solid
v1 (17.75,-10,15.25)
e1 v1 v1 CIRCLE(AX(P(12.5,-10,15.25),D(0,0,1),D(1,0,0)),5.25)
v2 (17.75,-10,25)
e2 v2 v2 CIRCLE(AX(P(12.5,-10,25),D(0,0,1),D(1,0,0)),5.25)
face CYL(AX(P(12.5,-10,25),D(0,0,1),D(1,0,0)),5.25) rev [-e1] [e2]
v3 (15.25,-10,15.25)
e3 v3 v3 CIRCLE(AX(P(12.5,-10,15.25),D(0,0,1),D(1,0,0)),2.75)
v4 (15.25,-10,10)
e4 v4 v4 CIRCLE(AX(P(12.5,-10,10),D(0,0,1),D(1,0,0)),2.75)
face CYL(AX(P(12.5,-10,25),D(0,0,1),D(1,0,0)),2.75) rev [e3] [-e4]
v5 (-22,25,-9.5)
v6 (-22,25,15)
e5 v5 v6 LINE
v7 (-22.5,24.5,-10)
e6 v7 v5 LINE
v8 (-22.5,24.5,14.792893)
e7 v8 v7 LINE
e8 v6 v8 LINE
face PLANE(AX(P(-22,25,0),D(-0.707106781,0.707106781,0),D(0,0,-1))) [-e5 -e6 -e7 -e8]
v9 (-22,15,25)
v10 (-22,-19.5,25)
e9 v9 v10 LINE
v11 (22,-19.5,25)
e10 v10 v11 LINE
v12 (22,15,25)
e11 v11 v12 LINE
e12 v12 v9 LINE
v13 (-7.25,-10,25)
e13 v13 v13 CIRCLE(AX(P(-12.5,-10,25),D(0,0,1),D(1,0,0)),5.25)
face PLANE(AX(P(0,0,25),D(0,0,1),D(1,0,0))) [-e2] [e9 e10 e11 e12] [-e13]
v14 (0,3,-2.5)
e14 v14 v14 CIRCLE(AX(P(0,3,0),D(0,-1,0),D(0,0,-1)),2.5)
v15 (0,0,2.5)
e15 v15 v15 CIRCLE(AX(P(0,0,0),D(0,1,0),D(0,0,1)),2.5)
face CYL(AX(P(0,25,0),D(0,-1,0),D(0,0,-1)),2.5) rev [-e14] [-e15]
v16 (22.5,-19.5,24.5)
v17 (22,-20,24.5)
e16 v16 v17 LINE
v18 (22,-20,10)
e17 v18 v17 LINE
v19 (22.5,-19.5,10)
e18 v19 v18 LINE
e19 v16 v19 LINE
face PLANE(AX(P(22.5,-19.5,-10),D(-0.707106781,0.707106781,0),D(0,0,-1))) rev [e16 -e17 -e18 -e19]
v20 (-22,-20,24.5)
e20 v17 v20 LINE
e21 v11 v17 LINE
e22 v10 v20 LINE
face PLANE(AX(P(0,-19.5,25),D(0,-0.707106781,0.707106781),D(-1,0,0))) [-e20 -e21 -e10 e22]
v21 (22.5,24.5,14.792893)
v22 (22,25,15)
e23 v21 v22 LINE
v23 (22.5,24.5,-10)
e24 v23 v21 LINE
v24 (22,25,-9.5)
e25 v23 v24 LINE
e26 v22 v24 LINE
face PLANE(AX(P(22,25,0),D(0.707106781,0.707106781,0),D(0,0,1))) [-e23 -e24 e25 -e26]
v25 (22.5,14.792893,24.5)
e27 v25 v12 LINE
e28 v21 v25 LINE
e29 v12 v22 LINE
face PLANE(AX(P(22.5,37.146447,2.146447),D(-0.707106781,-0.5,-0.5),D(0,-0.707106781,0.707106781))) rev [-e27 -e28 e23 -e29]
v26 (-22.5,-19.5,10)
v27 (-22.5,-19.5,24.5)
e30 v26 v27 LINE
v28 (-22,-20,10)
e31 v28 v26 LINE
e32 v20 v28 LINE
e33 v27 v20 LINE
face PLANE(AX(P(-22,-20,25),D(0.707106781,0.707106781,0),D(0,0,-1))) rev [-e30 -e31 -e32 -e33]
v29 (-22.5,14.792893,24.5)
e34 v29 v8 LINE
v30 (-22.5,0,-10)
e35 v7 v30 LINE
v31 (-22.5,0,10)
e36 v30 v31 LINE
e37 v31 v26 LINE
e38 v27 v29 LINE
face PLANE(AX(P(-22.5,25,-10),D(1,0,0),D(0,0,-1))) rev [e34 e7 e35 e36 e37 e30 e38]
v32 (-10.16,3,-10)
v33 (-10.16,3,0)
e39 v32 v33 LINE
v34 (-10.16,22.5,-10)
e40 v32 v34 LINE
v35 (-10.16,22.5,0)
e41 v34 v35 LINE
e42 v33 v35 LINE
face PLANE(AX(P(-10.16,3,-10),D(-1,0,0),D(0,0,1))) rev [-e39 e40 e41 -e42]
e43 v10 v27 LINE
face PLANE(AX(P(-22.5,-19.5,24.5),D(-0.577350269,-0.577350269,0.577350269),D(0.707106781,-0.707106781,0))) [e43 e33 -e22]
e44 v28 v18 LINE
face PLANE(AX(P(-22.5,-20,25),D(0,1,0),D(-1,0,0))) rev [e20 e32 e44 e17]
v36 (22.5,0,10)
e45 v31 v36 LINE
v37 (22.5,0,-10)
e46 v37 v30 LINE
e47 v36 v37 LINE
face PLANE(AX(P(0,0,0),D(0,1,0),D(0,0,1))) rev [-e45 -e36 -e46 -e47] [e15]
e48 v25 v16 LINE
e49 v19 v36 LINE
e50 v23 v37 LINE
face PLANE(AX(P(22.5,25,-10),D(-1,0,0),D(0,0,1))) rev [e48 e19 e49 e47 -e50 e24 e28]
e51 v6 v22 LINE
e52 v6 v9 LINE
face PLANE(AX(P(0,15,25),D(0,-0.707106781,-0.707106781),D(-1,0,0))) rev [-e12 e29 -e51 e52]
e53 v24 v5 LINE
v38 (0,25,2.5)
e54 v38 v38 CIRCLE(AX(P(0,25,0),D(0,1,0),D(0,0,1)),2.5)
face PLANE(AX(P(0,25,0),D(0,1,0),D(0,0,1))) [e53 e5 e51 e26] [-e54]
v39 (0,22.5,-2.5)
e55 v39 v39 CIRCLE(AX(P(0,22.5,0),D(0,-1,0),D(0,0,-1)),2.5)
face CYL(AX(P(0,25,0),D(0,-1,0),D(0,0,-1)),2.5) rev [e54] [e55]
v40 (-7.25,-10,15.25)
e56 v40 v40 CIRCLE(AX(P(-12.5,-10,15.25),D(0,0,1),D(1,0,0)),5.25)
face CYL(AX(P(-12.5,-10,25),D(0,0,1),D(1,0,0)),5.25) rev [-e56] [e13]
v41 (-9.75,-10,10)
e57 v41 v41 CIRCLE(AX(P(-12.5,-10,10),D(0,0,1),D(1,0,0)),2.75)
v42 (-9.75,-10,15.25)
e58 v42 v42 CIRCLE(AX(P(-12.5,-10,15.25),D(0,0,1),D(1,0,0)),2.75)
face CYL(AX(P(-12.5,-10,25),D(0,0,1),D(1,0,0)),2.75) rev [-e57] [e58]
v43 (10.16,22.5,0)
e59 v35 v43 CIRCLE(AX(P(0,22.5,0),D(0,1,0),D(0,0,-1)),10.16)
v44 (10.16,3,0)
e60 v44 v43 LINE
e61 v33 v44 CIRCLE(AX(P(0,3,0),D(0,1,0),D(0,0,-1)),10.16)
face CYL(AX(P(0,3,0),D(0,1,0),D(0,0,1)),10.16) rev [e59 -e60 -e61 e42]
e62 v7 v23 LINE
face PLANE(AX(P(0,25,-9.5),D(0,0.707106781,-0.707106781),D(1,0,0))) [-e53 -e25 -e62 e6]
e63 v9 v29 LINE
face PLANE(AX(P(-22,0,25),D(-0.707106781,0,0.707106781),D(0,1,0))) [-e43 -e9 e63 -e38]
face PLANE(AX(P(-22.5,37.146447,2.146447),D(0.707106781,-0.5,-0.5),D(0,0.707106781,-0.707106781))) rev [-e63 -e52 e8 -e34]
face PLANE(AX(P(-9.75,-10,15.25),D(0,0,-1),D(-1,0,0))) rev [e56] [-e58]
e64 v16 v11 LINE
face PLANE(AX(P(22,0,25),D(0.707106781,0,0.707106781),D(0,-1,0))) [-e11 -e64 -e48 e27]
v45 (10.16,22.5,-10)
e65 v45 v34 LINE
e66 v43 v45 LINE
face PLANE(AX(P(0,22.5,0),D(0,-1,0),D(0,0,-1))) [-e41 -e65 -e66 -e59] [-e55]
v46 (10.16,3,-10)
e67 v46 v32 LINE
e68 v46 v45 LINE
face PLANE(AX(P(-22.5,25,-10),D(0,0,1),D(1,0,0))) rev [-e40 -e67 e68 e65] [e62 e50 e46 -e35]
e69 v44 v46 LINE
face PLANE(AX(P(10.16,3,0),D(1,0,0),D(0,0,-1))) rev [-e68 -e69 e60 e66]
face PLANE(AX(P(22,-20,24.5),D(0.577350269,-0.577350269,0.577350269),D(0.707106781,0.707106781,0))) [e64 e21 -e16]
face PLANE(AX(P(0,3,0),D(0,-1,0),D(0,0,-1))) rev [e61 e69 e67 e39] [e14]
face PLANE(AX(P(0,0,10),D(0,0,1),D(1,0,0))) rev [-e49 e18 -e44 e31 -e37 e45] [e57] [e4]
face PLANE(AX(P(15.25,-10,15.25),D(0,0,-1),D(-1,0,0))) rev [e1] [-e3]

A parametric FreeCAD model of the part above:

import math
import FreeCAD as App
import Part
import Sketcher

V = App.Vector


def edges_at(feature, points):
    """Names of the edges that pass closest to the given points."""
    edges = feature.Shape.Edges
    near = lambda p: min(range(len(edges)), key=lambda i: edges[i].distToShape(Part.Vertex(*p))[0])
    return sorted({f"Edge{near(p) + 1}" for p in points})

doc = App.newDocument("Part")
body = doc.addObject("PartDesign::Body", "Body")

sketch1 = body.newObject("Sketcher::SketchObject", "Sketch")
sketch1.AttachmentSupport = (doc.getObject("XZ_Plane"), [""])
sketch1.MapMode = "FlatFace"
sketch1.addGeometry([
    Part.LineSegment(V(-22.5, -10, 0), V(-22.5, 10, 0)),
    Part.LineSegment(V(-22.5, 10, 0), V(22.5, 10, 0)),
    Part.LineSegment(V(22.5, 10, 0), V(22.5, -10, 0)),
    Part.LineSegment(V(22.5, -10, 0), V(-22.5, -10, 0)),
    Part.Circle(V(0, 0, 0), V(0, 0, 1), 2.5),
], False)
sketch1.addConstraint([
    Sketcher.Constraint("Coincident", 0, 2, 1, 1),
    Sketcher.Constraint("Coincident", 1, 2, 2, 1),
    Sketcher.Constraint("Coincident", 2, 2, 3, 1),
    Sketcher.Constraint("Coincident", 3, 2, 0, 1),
    Sketcher.Constraint("Vertical", 0),
    Sketcher.Constraint("Horizontal", 1),
    Sketcher.Constraint("Vertical", 2),
    Sketcher.Constraint("Horizontal", 3),
    Sketcher.Constraint("Coincident", 4, 3, -1, 1),
    Sketcher.Constraint("Symmetric", 0, 2, 2, 2, -1, 1),
    Sketcher.Constraint("Diameter", 4, 5.0),
    Sketcher.Constraint("DistanceX", 1, 1, 1, 2, 45.0),
    Sketcher.Constraint("DistanceY", 0, 1, 0, 2, 20.0),
])
pad1 = body.newObject("PartDesign::Pad", "Pad")
pad1.Profile = sketch1
pad1.Length = 25
pad1.Reversed = True

sketch2 = body.newObject("Sketcher::SketchObject", "Sketch001")
sketch2.AttachmentSupport = (doc.getObject("XY_Plane"), [""])
sketch2.MapMode = "FlatFace"
sketch2.AttachmentOffset = App.Placement(V(0, 0, 10), App.Rotation())
sketch2.addGeometry([
    Part.LineSegment(V(-22, 25, 0), V(-22, -20, 0)),
    Part.LineSegment(V(-22, -20, 0), V(22, -20, 0)),
    Part.LineSegment(V(22, -20, 0), V(22, 25, 0)),
    Part.LineSegment(V(22, 25, 0), V(-22, 25, 0)),
], False)
sketch2.addConstraint([
    Sketcher.Constraint("Coincident", 0, 2, 1, 1),
    Sketcher.Constraint("Coincident", 1, 2, 2, 1),
    Sketcher.Constraint("Coincident", 2, 2, 3, 1),
    Sketcher.Constraint("Coincident", 3, 2, 0, 1),
    Sketcher.Constraint("Vertical", 0),
    Sketcher.Constraint("Horizontal", 1),
    Sketcher.Constraint("Vertical", 2),
    Sketcher.Constraint("Horizontal", 3),
    Sketcher.Constraint("Equal", 3, 0),
    Sketcher.Constraint("DistanceX", 1, 1, 1, 2, 45.0),
    Sketcher.Constraint("DistanceY", 0, 2, -1, 1, 20.0),
    Sketcher.Constraint("DistanceX", 0, 2, -1, 1, 22.5),
])
pad2 = body.newObject("PartDesign::Pad", "Pad001")
pad2.Profile = sketch2
pad2.Length = 15

sketch3 = body.newObject("Sketcher::SketchObject", "Sketch002")
sketch3.AttachmentSupport = (doc.getObject("XZ_Plane"), [""])
sketch3.MapMode = "FlatFace"
sketch3.AttachmentOffset = App.Placement(V(0, 0, -22.5), App.Rotation())
sketch3.addGeometry([
    Part.LineSegment(V(10, 0, 0), V(10, -10, 0)),
    Part.LineSegment(V(10, -10, 0), V(-10, -10, 0)),
    Part.LineSegment(V(-10, -10, 0), V(-10, 0, 0)),
    Part.ArcOfCircle(Part.Circle(V(0, 0, 0), V(0, 0, 1), 10), math.radians(0), math.radians(180)),
], False)
sketch3.addConstraint([
    Sketcher.Constraint("Coincident", 0, 2, 1, 1),
    Sketcher.Constraint("Coincident", 1, 2, 2, 1),
    Sketcher.Constraint("Tangent", 2, 2, 3, 2),
    Sketcher.Constraint("Tangent", 3, 1, 0, 1),
    Sketcher.Constraint("Vertical", 0),
    Sketcher.Constraint("Horizontal", 1),
    Sketcher.Constraint("Vertical", 2),
    Sketcher.Constraint("Coincident", 3, 3, -1, 1),
    Sketcher.Constraint("DistanceY", 0, 2, 0, 1, 10.0),
    Sketcher.Constraint("Radius", 3, 10.16),
])
pocket1 = body.newObject("PartDesign::Pocket", "Pocket")
pocket1.Profile = sketch3
pocket1.Length = 19.5
pocket1.Reversed = True
doc.recompute()

chamfer = body.newObject("PartDesign::Chamfer", "Chamfer")
chamfer.Base = (pocket1, edges_at(pocket1, [(0, 25, 25)]))
chamfer.Size = 10

sketch4 = body.newObject("Sketcher::SketchObject", "Sketch003")
sketch4.AttachmentSupport = (doc.getObject("XY_Plane"), [""])
sketch4.MapMode = "FlatFace"
sketch4.AttachmentOffset = App.Placement(V(0, 0, 25), App.Rotation())
sketch4.addGeometry([
    Part.Circle(V(-12.5, -10, 0), V(0, 0, 1), 2.8),
    Part.Circle(V(12.5, -10, 0), V(0, 0, 1), 2.8),
], False)
sketch4.addConstraint([
    Sketcher.Constraint("Equal", 0, 1),
    Sketcher.Constraint("Symmetric", 0, 3, 1, 3, -2),
    Sketcher.Constraint("Diameter", 0, 5.5),
    Sketcher.Constraint("DistanceY", 0, 3, -1, 1, 10.0),
    Sketcher.Constraint("DistanceX", 0, 3, 1, 3, 25.0),
])
doc.recompute()
hole = body.newObject("PartDesign::Hole", "Hole")
hole.Profile = sketch4
hole.ThreadType = "None"
hole.Diameter = 5.5
hole.DepthType = "ThroughAll"
hole.HoleCutType = "Counterbore"
hole.HoleCutDiameter = 10.5
hole.HoleCutDepth = 9.75
doc.recompute()

chamfer2 = body.newObject("PartDesign::Chamfer", "Chamfer001")
chamfer2.Base = (hole, edges_at(hole, [
    (-22.5, 25, 2.5),
    (-22.5, -20, 17.5),
    (22.5, -20, 17.5),
    (0, -20, 25),
    (22.5, -2.5, 25),
    (-22.5, -2.5, 25),
    (-22.5, 20, 20),
    (22.5, 25, 2.5),
    (22.5, 20, 20),
    (0, 25, -10),
]))
chamfer2.Size = 0.5

doc.recompute()
